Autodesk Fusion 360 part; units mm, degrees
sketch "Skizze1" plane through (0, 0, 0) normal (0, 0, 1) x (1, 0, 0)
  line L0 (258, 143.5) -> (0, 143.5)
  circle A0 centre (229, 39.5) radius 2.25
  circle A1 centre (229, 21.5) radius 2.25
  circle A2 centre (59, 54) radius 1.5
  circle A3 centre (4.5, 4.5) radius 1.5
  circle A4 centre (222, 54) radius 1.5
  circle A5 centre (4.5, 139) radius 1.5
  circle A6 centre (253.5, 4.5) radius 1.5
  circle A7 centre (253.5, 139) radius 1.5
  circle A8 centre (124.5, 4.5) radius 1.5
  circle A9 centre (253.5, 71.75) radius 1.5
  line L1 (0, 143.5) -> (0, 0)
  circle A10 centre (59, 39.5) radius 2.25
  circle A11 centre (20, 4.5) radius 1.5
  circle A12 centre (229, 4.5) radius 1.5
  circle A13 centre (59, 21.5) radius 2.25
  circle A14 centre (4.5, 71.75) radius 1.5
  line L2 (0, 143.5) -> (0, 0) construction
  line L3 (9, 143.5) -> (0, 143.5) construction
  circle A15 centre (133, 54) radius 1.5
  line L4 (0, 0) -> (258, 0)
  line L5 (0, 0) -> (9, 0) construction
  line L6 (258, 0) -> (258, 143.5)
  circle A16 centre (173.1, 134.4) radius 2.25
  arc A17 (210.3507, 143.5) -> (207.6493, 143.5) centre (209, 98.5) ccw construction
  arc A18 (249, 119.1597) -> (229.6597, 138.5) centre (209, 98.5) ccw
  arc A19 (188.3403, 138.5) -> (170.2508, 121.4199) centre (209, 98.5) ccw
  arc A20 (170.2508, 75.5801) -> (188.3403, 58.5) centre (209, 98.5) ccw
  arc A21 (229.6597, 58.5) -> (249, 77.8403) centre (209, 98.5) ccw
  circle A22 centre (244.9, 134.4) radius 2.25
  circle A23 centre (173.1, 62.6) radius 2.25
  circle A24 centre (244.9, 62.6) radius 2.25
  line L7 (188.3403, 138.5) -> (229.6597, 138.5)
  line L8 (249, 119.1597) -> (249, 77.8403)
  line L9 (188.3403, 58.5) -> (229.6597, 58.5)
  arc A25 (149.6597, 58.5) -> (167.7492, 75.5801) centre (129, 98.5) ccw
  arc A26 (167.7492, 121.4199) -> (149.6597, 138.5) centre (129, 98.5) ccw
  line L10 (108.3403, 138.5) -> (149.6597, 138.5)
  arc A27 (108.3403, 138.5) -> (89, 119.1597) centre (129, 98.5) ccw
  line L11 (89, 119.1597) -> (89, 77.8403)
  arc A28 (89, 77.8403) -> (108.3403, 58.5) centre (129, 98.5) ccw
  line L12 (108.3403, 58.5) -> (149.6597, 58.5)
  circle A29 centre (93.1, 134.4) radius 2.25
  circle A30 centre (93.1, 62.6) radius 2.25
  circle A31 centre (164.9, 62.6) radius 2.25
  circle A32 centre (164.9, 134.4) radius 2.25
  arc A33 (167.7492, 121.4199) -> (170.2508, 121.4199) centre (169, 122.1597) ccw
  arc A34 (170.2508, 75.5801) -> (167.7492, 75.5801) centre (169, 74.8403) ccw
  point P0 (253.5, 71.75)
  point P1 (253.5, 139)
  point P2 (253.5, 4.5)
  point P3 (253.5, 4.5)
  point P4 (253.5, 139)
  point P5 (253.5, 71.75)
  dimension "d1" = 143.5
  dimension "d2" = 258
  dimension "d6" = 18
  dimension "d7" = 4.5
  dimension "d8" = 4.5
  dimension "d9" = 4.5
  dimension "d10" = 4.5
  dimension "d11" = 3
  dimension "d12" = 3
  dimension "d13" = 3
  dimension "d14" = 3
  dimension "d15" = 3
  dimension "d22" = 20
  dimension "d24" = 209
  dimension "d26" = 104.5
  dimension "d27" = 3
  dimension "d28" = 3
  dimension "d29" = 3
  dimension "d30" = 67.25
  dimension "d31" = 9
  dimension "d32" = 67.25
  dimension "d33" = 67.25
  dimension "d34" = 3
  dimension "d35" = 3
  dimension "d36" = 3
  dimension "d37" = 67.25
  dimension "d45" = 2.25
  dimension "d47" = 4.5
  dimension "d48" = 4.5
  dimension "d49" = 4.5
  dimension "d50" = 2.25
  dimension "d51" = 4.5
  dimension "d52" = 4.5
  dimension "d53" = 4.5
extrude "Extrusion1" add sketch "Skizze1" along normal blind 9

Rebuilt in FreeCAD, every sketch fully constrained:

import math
import FreeCAD as App
import Part
import Sketcher

V = App.Vector
Q = App.Units.Quantity

doc = App.newDocument("Part")
params = doc.addObject("Spreadsheet::Sheet", "Params")
for row, (alias, value) in enumerate([
    ("sketch1_diameter", "3 mm"),
    ("sketch1_diameter2", "4.5 mm"),
    ("sketch1_width", "258 mm"),
    ("sketch1_height", "143.5 mm"),
    ("pad1_length", "9 mm"),
], start=1):
    params.set(f"A{row}", alias)
    params.set(f"B{row}", "=" + value)
    params.setAlias(f"B{row}", alias)

body = doc.addObject("PartDesign::Body", "Body")

sketch1 = doc.addObject("Sketcher::SketchObject", "Sketch")
body.addObject(sketch1)
sketch1.AttachmentSupport = (doc.XY_Plane, [""])
sketch1.MapMode = "FlatFace"
sketch1.addGeometry([
    Part.LineSegment(V(258, 0, 0), V(258, 143.5, 0)),
    Part.LineSegment(V(258, 143.5, 0), V(0, 143.5, 0)),
    Part.LineSegment(V(0, 143.5, 0), V(0, 0, 0)),
    Part.LineSegment(V(0, 0, 0), V(258, 0, 0)),
    Part.Circle(V(4.5, 4.5, 0), V(0, 0, 1), 1.5),
    Part.Circle(V(20, 4.5, 0), V(0, 0, 1), 1.5),
    Part.Circle(V(59, 21.5, 0), V(0, 0, 1), 2.2),
    Part.Circle(V(124.5, 4.5, 0), V(0, 0, 1), 1.5),
    Part.Circle(V(59, 39.5, 0), V(0, 0, 1), 2.2),
    Part.Circle(V(59, 54, 0), V(0, 0, 1), 1.5),
    Part.Circle(V(93.1, 62.6, 0), V(0, 0, 1), 2.2),
    Part.Circle(V(229, 4.5, 0), V(0, 0, 1), 1.5),
    Part.Circle(V(253.5, 4.5, 0), V(0, 0, 1), 1.5),
    Part.Circle(V(229, 21.5, 0), V(0, 0, 1), 2.2),
    Part.Circle(V(133, 54, 0), V(0, 0, 1), 1.5),
    Part.Circle(V(164.9, 62.6, 0), V(0, 0, 1), 2.2),
    Part.Circle(V(173.1, 62.6, 0), V(0, 0, 1), 2.2),
    Part.Circle(V(229, 39.5, 0), V(0, 0, 1), 2.2),
    Part.Circle(V(222, 54, 0), V(0, 0, 1), 1.5),
    Part.Circle(V(244.9, 62.6, 0), V(0, 0, 1), 2.2),
    Part.Circle(V(4.5, 71.8, 0), V(0, 0, 1), 1.5),
    Part.Circle(V(4.5, 139, 0), V(0, 0, 1), 1.5),
    Part.Circle(V(93.1, 134.4, 0), V(0, 0, 1), 2.2),
    Part.ArcOfCircle(Part.Circle(V(209, 98.5, 0), V(0, 0, 1), 45), math.radians(27), math.radians(63)),
    Part.LineSegment(V(249, 119.2, 0), V(249, 77.8, 0)),
    Part.ArcOfCircle(Part.Circle(V(209, 98.5, 0), V(0, 0, 1), 45), math.radians(-63), math.radians(-27)),
    Part.LineSegment(V(229.7, 58.5, 0), V(188.3, 58.5, 0)),
    Part.ArcOfCircle(Part.Circle(V(209, 98.5, 0), V(0, 0, 1), 45), math.radians(-149), math.radians(-117)),
    Part.ArcOfCircle(Part.Circle(V(169, 74.8, 0), V(0, 0, 1), 1.5), math.radians(31), math.radians(149)),
    Part.ArcOfCircle(Part.Circle(V(129, 98.5, 0), V(0, 0, 1), 45), math.radians(-63), math.radians(-31)),
    Part.LineSegment(V(149.7, 58.5, 0), V(108.3, 58.5, 0)),
    Part.ArcOfCircle(Part.Circle(V(129, 98.5, 0), V(0, 0, 1), 45), math.radians(-153), math.radians(-117)),
    Part.LineSegment(V(89, 77.8, 0), V(89, 119.2, 0)),
    Part.ArcOfCircle(Part.Circle(V(129, 98.5, 0), V(0, 0, 1), 45), math.radians(117), math.radians(153)),
    Part.LineSegment(V(108.3, 138.5, 0), V(149.7, 138.5, 0)),
    Part.ArcOfCircle(Part.Circle(V(129, 98.5, 0), V(0, 0, 1), 45), math.radians(31), math.radians(63)),
    Part.ArcOfCircle(Part.Circle(V(169, 122.2, 0), V(0, 0, 1), 1.5), math.radians(-149), math.radians(-31)),
    Part.ArcOfCircle(Part.Circle(V(209, 98.5, 0), V(0, 0, 1), 45), math.radians(117), math.radians(149)),
    Part.LineSegment(V(188.3, 138.5, 0), V(229.7, 138.5, 0)),
    Part.Circle(V(253.5, 71.8, 0), V(0, 0, 1), 1.5),
    Part.Circle(V(164.9, 134.4, 0), V(0, 0, 1), 2.2),
    Part.Circle(V(173.1, 134.4, 0), V(0, 0, 1), 2.2),
    Part.Circle(V(244.9, 134.4, 0), V(0, 0, 1), 2.2),
    Part.Circle(V(253.5, 139, 0), V(0, 0, 1), 1.5),
], False)
sketch1.addConstraint([
    Sketcher.Constraint("Coincident", 0, 2, 1, 1),
    Sketcher.Constraint("Coincident", 1, 2, 2, 1),
    Sketcher.Constraint("Coincident", 2, 2, 3, 1),
    Sketcher.Constraint("Coincident", 3, 2, 0, 1),
    Sketcher.Constraint("Coincident", 23, 1, 24, 1),
    Sketcher.Constraint("Coincident", 24, 2, 25, 2),
    Sketcher.Constraint("Coincident", 25, 1, 26, 1),
    Sketcher.Constraint("Coincident", 26, 2, 27, 2),
    Sketcher.Constraint("Tangent", 27, 1, 28, 1),
    Sketcher.Constraint("Tangent", 28, 2, 29, 2),
    Sketcher.Constraint("Coincident", 29, 1, 30, 1),
    Sketcher.Constraint("Coincident", 30, 2, 31, 2),
    Sketcher.Constraint("Coincident", 31, 1, 32, 1),
    Sketcher.Constraint("Coincident", 32, 2, 33, 2),
    Sketcher.Constraint("Coincident", 33, 1, 34, 1),
    Sketcher.Constraint("Coincident", 34, 2, 35, 2),
    Sketcher.Constraint("Tangent", 35, 1, 36, 1),
    Sketcher.Constraint("Tangent", 36, 2, 37, 2),
    Sketcher.Constraint("Coincident", 37, 1, 38, 1),
    Sketcher.Constraint("Coincident", 38, 2, 23, 2),
    Sketcher.Constraint("Vertical", 0),
    Sketcher.Constraint("Horizontal", 1),
    Sketcher.Constraint("Vertical", 2),
    Sketcher.Constraint("Horizontal", 3),
    Sketcher.Constraint("Vertical", 24),
    Sketcher.Constraint("Horizontal", 26),
    Sketcher.Constraint("Horizontal", 30),
    Sketcher.Constraint("Vertical", 32),
    Sketcher.Constraint("Horizontal", 34),
    Sketcher.Constraint("Horizontal", 38),
    Sketcher.Constraint("Coincident", 2, 2, -1, 1),
    Sketcher.Constraint("Coincident", 25, 3, 23, 3),
    Sketcher.Constraint("Coincident", 27, 3, 23, 3),
    Sketcher.Constraint("Coincident", 31, 3, 29, 3),
    Sketcher.Constraint("Coincident", 33, 3, 29, 3),
    Sketcher.Constraint("Coincident", 35, 3, 29, 3),
    Sketcher.Constraint("Coincident", 37, 3, 23, 3),
    Sketcher.Constraint("Equal", 4, 5),
    Sketcher.Constraint("Equal", 5, 7),
    Sketcher.Constraint("Equal", 6, 8),
    Sketcher.Constraint("Equal", 7, 9),
    Sketcher.Constraint("Equal", 8, 10),
    Sketcher.Constraint("Equal", 9, 11),
    Sketcher.Constraint("Equal", 11, 12),
    Sketcher.Constraint("Equal", 10, 13),
    Sketcher.Constraint("Equal", 12, 14),
    Sketcher.Constraint("Equal", 13, 15),
    Sketcher.Constraint("Equal", 15, 16),
    Sketcher.Constraint("Equal", 16, 17),
    Sketcher.Constraint("Equal", 14, 18),
    Sketcher.Constraint("Equal", 17, 19),
    Sketcher.Constraint("Equal", 18, 20),
    Sketcher.Constraint("Equal", 20, 21),
    Sketcher.Constraint("Equal", 19, 22),
    Sketcher.Constraint("Equal", 23, 25),
    Sketcher.Constraint("Equal", 25, 27),
    Sketcher.Constraint("Equal", 27, 29),
    Sketcher.Constraint("Equal", 29, 31),
    Sketcher.Constraint("Equal", 31, 33),
    Sketcher.Constraint("Equal", 33, 35),
    Sketcher.Constraint("Equal", 28, 36),
    Sketcher.Constraint("Equal", 35, 37),
    Sketcher.Constraint("Equal", 21, 39),
    Sketcher.Constraint("Equal", 22, 40),
    Sketcher.Constraint("Equal", 40, 41),
    Sketcher.Constraint("Equal", 41, 42),
    Sketcher.Constraint("Equal", 39, 43),
    Sketcher.Constraint("Horizontal", 4, 3, 5, 3),
    Sketcher.Constraint("Horizontal", 5, 3, 7, 3),
    Sketcher.Constraint("Horizontal", 7, 3, 11, 3),
    Sketcher.Constraint("Horizontal", 11, 3, 12, 3),
    Sketcher.Constraint("Horizontal", 6, 3, 13, 3),
    Sketcher.Constraint("Horizontal", 9, 3, 14, 3),
    Sketcher.Constraint("Horizontal", 10, 3, 15, 3),
    Sketcher.Constraint("Horizontal", 15, 3, 16, 3),
    Sketcher.Constraint("Horizontal", 8, 3, 17, 3),
    Sketcher.Constraint("Horizontal", 14, 3, 18, 3),
    Sketcher.Constraint("Horizontal", 16, 3, 19, 3),
    Sketcher.Constraint("Horizontal", 27, 3, 29, 3),
    Sketcher.Constraint("Horizontal", 20, 3, 39, 3),
    Sketcher.Constraint("Horizontal", 22, 3, 40, 3),
    Sketcher.Constraint("Horizontal", 40, 3, 41, 3),
    Sketcher.Constraint("Horizontal", 41, 3, 42, 3),
    Sketcher.Constraint("Horizontal", 21, 3, 43, 3),
    Sketcher.Constraint("Horizontal", 26, 2, 29, 1),
    Sketcher.Constraint("Horizontal", 24, 2, 31, 1),
    Sketcher.Constraint("Horizontal", 34, 2, 37, 1),
    Sketcher.Constraint("Vertical", 6, 3, 8, 3),
    Sketcher.Constraint("Vertical", 8, 3, 9, 3),
    Sketcher.Constraint("Vertical", 11, 3, 13, 3),
    Sketcher.Constraint("Vertical", 13, 3, 17, 3),
    Sketcher.Constraint("Vertical", 4, 3, 20, 3),
    Sketcher.Constraint("Vertical", 20, 3, 21, 3),
    Sketcher.Constraint("Vertical", 10, 3, 22, 3),
    Sketcher.Constraint("Vertical", 12, 3, 39, 3),
    Sketcher.Constraint("Vertical", 15, 3, 40, 3),
    Sketcher.Constraint("Vertical", 16, 3, 41, 3),
    Sketcher.Constraint("Vertical", 19, 3, 42, 3),
    Sketcher.Constraint("Vertical", 39, 3, 43, 3),
    Sketcher.Constraint("Vertical", 30, 2, 33, 1),
    Sketcher.Constraint("Equal", 38, 24),
    Sketcher.Constraint("Diameter", 4, Q("3 mm")),
    Sketcher.Constraint("Diameter", 6, Q("4.5 mm")),
    Sketcher.Constraint("DistanceX", 1, 2, 1, 1, Q("258 mm")),
    Sketcher.Constraint("DistanceY", 0, 1, 0, 2, Q("143.5 mm")),
    Sketcher.Constraint("DistanceX", -1, 1, 5, 3, Q("20 mm")),
    Sketcher.Constraint("DistanceX", -1, 1, 23, 3, Q("209 mm")),
    Sketcher.Constraint("DistanceY", 6, 3, 8, 3, Q("18 mm")),
    Sketcher.Constraint("DistanceX", 23, 3, 17, 3, Q("20 mm")),
    Sketcher.Constraint("DistanceX", 23, 1, 0, 2, Q("9 mm")),
    Sketcher.Constraint("DistanceX", -1, 1, 4, 3, Q("4.5 mm")),
    Sketcher.Constraint("DistanceY", -1, 1, 4, 3, Q("4.5 mm")),
    Sketcher.Constraint("DistanceX", 5, 3, 7, 3, Q("104.5 mm")),
    Sketcher.Constraint("DistanceX", 43, 3, 0, 2, Q("4.5 mm")),
    Sketcher.Constraint("DistanceY", 43, 3, 0, 2, Q("4.5 mm")),
    Sketcher.Constraint("DistanceY", 18, 3, 25, 1, Q("4.5 mm")),
    Sketcher.Constraint("DistanceY", 4, 3, 20, 3, Q("67.25 mm")),
    Sketcher.Constraint("DistanceX", -1, 1, 6, 3, Q("59 mm")),
    Sketcher.Constraint("DistanceY", -1, 1, 9, 3, Q("54 mm")),
    Sketcher.Constraint("DistanceX", -1, 1, 14, 3, Q("133 mm")),
    Sketcher.Constraint("DistanceX", -1, 1, 18, 3, Q("222 mm")),
    Sketcher.Constraint("DistanceX", -1, 1, 28, 3, Q("169 mm")),
    Sketcher.Constraint("DistanceY", 5, 3, 6, 3, Q("17 mm")),
    Sketcher.Constraint("DistanceX", 10, 3, 16, 3, Q("80 mm")),
    Sketcher.Constraint("DistanceX", -1, 1, 10, 3, Q("93.1 mm")),
    Sketcher.Constraint("DistanceY", -1, 1, 10, 3, Q("62.6 mm")),
    Sketcher.Constraint("DistanceX", -1, 1, 15, 3, Q("164.9 mm")),
    Sketcher.Constraint("DistanceX", -1, 1, 19, 3, Q("244.9 mm")),
    Sketcher.Constraint("DistanceY", -1, 1, 22, 3, Q("134.4 mm")),
    Sketcher.Constraint("Radius", 23, Q("45.0203 mm")),
    Sketcher.Constraint("Radius", 28, Q("1.4532 mm")),
])
sketch1.setExpression("Constraints[101]", "Params.sketch1_diameter")
sketch1.setExpression("Constraints[102]", "Params.sketch1_diameter2")
sketch1.setExpression("Constraints[103]", "Params.sketch1_width")
sketch1.setExpression("Constraints[104]", "Params.sketch1_height")
pad1 = doc.addObject("PartDesign::Pad", "Pad")
body.addObject(pad1)
pad1.Profile = sketch1
pad1.setExpression("Length", "Params.pad1_length")

doc.recompute()
